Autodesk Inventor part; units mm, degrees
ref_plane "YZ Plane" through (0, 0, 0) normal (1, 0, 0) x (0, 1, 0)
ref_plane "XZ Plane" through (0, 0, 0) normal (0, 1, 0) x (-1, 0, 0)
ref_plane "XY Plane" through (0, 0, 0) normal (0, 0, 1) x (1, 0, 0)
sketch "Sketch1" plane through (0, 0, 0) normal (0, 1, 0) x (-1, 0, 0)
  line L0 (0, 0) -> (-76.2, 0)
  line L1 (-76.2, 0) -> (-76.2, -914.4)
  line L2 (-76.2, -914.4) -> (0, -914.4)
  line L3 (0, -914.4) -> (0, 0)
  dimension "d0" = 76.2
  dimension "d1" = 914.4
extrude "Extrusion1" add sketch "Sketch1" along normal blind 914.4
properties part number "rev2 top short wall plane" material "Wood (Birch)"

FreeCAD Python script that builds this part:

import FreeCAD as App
import Part
import Sketcher
from FreeCAD import Vector
Q = App.Units.Quantity


def add_polygon(sketch, points):
    """Adds a closed chain of lines whose ends are joined by coincident constraints."""
    first, n = sketch.GeometryCount, len(points)
    for a, b in zip(points, points[1:] + points[:1]):
        sketch.addGeometry(Part.LineSegment(App.Vector(*a, 0), App.Vector(*b, 0)), False)
    for i in range(n):
        sketch.addConstraint(Sketcher.Constraint("Coincident", first + i, 2, first + (i + 1) % n, 1))

doc = App.newDocument("Part")
params = doc.addObject("Spreadsheet::Sheet", "Params")
for row, (alias, value) in enumerate([
    ("sketch1_width", "3 in"),
    ("sketch1_height", "36 in"),
    ("pad1_length", "36 in"),
], start=1):
    params.set(f"A{row}", alias)
    params.set(f"B{row}", "=" + value)
    params.setAlias(f"B{row}", alias)

body = doc.addObject("PartDesign::Body", "Body")

# Sketch on XZ plane
sketch1 = body.newObject("Sketcher::SketchObject", "Sketch")
sketch1.AttachmentSupport = (doc.getObject("XZ_Plane"), [""])
sketch1.MapMode = "FlatFace"
add_polygon(sketch1, [(0, -914.4), (0, 0), (76.2, 0), (76.2, -914.4)])  # lines 0-3
sketch1.addConstraint([
    Sketcher.Constraint("Vertical", 0),
    Sketcher.Constraint("Horizontal", 1),
    Sketcher.Constraint("Vertical", 2),
    Sketcher.Constraint("Horizontal", 3),
    Sketcher.Constraint("Coincident", 0, 2, -1, 1),
    Sketcher.Constraint("DistanceX", 1, 1, 1, 2, Q("3 in")),
    Sketcher.Constraint("DistanceY", 0, 1, 0, 2, Q("36 in")),
])
sketch1.setExpression("Constraints[9]", "Params.sketch1_width")
sketch1.setExpression("Constraints[10]", "Params.sketch1_height")
pad1 = body.newObject("PartDesign::Pad", "Pad")
pad1.Profile = sketch1
pad1.setExpression("Length", "Params.pad1_length")
pad1.Reversed = True

doc.recompute()
